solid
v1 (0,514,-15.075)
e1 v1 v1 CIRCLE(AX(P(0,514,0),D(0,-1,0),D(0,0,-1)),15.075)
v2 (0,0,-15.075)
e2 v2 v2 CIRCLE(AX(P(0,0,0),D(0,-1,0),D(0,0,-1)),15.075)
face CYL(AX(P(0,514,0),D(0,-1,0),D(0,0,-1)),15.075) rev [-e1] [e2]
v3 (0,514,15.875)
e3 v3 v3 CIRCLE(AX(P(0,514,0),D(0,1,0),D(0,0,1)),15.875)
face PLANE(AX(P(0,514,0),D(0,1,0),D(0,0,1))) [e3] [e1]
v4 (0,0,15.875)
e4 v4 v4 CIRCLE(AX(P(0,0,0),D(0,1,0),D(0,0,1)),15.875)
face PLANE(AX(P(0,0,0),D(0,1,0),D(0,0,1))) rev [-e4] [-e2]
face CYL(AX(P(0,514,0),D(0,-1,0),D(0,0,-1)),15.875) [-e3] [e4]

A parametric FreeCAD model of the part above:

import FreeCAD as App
import Part
import Sketcher
from FreeCAD import Vector

doc = App.newDocument("Part")
body = doc.addObject("PartDesign::Body", "Body")

sketch1 = body.newObject("Sketcher::SketchObject", "Sketch")
sketch1.AttachmentSupport = (doc.getObject("XZ_Plane"), [""])
sketch1.MapMode = "FlatFace"
sketch1.addGeometry(Part.Circle(Vector(0, 0, 0), Vector(0, 0, 1), 16), False)
sketch1.addConstraint([
    Sketcher.Constraint("Coincident", 0, 3, -1, 1),
    Sketcher.Constraint("Diameter", 0, 31.75),
])
pad1 = body.newObject("PartDesign::Pad", "Pad")
pad1.Profile = sketch1
pad1.Length = 514
pad1.Reversed = True

sketch2 = body.newObject("Sketcher::SketchObject", "Sketch001")
sketch2.AttachmentSupport = (doc.getObject("XZ_Plane"), [""])
sketch2.MapMode = "FlatFace"
sketch2.addGeometry(Part.Circle(Vector(0, 0, 0), Vector(0, 0, 1), 15), False)
sketch2.addConstraint([
    Sketcher.Constraint("Coincident", 0, 3, -1, 1),
    Sketcher.Constraint("Diameter", 0, 30.15),
])
pocket1 = body.newObject("PartDesign::Pocket", "Pocket")
pocket1.Profile = sketch2
pocket1.Type = "ThroughAll"

doc.recompute()
